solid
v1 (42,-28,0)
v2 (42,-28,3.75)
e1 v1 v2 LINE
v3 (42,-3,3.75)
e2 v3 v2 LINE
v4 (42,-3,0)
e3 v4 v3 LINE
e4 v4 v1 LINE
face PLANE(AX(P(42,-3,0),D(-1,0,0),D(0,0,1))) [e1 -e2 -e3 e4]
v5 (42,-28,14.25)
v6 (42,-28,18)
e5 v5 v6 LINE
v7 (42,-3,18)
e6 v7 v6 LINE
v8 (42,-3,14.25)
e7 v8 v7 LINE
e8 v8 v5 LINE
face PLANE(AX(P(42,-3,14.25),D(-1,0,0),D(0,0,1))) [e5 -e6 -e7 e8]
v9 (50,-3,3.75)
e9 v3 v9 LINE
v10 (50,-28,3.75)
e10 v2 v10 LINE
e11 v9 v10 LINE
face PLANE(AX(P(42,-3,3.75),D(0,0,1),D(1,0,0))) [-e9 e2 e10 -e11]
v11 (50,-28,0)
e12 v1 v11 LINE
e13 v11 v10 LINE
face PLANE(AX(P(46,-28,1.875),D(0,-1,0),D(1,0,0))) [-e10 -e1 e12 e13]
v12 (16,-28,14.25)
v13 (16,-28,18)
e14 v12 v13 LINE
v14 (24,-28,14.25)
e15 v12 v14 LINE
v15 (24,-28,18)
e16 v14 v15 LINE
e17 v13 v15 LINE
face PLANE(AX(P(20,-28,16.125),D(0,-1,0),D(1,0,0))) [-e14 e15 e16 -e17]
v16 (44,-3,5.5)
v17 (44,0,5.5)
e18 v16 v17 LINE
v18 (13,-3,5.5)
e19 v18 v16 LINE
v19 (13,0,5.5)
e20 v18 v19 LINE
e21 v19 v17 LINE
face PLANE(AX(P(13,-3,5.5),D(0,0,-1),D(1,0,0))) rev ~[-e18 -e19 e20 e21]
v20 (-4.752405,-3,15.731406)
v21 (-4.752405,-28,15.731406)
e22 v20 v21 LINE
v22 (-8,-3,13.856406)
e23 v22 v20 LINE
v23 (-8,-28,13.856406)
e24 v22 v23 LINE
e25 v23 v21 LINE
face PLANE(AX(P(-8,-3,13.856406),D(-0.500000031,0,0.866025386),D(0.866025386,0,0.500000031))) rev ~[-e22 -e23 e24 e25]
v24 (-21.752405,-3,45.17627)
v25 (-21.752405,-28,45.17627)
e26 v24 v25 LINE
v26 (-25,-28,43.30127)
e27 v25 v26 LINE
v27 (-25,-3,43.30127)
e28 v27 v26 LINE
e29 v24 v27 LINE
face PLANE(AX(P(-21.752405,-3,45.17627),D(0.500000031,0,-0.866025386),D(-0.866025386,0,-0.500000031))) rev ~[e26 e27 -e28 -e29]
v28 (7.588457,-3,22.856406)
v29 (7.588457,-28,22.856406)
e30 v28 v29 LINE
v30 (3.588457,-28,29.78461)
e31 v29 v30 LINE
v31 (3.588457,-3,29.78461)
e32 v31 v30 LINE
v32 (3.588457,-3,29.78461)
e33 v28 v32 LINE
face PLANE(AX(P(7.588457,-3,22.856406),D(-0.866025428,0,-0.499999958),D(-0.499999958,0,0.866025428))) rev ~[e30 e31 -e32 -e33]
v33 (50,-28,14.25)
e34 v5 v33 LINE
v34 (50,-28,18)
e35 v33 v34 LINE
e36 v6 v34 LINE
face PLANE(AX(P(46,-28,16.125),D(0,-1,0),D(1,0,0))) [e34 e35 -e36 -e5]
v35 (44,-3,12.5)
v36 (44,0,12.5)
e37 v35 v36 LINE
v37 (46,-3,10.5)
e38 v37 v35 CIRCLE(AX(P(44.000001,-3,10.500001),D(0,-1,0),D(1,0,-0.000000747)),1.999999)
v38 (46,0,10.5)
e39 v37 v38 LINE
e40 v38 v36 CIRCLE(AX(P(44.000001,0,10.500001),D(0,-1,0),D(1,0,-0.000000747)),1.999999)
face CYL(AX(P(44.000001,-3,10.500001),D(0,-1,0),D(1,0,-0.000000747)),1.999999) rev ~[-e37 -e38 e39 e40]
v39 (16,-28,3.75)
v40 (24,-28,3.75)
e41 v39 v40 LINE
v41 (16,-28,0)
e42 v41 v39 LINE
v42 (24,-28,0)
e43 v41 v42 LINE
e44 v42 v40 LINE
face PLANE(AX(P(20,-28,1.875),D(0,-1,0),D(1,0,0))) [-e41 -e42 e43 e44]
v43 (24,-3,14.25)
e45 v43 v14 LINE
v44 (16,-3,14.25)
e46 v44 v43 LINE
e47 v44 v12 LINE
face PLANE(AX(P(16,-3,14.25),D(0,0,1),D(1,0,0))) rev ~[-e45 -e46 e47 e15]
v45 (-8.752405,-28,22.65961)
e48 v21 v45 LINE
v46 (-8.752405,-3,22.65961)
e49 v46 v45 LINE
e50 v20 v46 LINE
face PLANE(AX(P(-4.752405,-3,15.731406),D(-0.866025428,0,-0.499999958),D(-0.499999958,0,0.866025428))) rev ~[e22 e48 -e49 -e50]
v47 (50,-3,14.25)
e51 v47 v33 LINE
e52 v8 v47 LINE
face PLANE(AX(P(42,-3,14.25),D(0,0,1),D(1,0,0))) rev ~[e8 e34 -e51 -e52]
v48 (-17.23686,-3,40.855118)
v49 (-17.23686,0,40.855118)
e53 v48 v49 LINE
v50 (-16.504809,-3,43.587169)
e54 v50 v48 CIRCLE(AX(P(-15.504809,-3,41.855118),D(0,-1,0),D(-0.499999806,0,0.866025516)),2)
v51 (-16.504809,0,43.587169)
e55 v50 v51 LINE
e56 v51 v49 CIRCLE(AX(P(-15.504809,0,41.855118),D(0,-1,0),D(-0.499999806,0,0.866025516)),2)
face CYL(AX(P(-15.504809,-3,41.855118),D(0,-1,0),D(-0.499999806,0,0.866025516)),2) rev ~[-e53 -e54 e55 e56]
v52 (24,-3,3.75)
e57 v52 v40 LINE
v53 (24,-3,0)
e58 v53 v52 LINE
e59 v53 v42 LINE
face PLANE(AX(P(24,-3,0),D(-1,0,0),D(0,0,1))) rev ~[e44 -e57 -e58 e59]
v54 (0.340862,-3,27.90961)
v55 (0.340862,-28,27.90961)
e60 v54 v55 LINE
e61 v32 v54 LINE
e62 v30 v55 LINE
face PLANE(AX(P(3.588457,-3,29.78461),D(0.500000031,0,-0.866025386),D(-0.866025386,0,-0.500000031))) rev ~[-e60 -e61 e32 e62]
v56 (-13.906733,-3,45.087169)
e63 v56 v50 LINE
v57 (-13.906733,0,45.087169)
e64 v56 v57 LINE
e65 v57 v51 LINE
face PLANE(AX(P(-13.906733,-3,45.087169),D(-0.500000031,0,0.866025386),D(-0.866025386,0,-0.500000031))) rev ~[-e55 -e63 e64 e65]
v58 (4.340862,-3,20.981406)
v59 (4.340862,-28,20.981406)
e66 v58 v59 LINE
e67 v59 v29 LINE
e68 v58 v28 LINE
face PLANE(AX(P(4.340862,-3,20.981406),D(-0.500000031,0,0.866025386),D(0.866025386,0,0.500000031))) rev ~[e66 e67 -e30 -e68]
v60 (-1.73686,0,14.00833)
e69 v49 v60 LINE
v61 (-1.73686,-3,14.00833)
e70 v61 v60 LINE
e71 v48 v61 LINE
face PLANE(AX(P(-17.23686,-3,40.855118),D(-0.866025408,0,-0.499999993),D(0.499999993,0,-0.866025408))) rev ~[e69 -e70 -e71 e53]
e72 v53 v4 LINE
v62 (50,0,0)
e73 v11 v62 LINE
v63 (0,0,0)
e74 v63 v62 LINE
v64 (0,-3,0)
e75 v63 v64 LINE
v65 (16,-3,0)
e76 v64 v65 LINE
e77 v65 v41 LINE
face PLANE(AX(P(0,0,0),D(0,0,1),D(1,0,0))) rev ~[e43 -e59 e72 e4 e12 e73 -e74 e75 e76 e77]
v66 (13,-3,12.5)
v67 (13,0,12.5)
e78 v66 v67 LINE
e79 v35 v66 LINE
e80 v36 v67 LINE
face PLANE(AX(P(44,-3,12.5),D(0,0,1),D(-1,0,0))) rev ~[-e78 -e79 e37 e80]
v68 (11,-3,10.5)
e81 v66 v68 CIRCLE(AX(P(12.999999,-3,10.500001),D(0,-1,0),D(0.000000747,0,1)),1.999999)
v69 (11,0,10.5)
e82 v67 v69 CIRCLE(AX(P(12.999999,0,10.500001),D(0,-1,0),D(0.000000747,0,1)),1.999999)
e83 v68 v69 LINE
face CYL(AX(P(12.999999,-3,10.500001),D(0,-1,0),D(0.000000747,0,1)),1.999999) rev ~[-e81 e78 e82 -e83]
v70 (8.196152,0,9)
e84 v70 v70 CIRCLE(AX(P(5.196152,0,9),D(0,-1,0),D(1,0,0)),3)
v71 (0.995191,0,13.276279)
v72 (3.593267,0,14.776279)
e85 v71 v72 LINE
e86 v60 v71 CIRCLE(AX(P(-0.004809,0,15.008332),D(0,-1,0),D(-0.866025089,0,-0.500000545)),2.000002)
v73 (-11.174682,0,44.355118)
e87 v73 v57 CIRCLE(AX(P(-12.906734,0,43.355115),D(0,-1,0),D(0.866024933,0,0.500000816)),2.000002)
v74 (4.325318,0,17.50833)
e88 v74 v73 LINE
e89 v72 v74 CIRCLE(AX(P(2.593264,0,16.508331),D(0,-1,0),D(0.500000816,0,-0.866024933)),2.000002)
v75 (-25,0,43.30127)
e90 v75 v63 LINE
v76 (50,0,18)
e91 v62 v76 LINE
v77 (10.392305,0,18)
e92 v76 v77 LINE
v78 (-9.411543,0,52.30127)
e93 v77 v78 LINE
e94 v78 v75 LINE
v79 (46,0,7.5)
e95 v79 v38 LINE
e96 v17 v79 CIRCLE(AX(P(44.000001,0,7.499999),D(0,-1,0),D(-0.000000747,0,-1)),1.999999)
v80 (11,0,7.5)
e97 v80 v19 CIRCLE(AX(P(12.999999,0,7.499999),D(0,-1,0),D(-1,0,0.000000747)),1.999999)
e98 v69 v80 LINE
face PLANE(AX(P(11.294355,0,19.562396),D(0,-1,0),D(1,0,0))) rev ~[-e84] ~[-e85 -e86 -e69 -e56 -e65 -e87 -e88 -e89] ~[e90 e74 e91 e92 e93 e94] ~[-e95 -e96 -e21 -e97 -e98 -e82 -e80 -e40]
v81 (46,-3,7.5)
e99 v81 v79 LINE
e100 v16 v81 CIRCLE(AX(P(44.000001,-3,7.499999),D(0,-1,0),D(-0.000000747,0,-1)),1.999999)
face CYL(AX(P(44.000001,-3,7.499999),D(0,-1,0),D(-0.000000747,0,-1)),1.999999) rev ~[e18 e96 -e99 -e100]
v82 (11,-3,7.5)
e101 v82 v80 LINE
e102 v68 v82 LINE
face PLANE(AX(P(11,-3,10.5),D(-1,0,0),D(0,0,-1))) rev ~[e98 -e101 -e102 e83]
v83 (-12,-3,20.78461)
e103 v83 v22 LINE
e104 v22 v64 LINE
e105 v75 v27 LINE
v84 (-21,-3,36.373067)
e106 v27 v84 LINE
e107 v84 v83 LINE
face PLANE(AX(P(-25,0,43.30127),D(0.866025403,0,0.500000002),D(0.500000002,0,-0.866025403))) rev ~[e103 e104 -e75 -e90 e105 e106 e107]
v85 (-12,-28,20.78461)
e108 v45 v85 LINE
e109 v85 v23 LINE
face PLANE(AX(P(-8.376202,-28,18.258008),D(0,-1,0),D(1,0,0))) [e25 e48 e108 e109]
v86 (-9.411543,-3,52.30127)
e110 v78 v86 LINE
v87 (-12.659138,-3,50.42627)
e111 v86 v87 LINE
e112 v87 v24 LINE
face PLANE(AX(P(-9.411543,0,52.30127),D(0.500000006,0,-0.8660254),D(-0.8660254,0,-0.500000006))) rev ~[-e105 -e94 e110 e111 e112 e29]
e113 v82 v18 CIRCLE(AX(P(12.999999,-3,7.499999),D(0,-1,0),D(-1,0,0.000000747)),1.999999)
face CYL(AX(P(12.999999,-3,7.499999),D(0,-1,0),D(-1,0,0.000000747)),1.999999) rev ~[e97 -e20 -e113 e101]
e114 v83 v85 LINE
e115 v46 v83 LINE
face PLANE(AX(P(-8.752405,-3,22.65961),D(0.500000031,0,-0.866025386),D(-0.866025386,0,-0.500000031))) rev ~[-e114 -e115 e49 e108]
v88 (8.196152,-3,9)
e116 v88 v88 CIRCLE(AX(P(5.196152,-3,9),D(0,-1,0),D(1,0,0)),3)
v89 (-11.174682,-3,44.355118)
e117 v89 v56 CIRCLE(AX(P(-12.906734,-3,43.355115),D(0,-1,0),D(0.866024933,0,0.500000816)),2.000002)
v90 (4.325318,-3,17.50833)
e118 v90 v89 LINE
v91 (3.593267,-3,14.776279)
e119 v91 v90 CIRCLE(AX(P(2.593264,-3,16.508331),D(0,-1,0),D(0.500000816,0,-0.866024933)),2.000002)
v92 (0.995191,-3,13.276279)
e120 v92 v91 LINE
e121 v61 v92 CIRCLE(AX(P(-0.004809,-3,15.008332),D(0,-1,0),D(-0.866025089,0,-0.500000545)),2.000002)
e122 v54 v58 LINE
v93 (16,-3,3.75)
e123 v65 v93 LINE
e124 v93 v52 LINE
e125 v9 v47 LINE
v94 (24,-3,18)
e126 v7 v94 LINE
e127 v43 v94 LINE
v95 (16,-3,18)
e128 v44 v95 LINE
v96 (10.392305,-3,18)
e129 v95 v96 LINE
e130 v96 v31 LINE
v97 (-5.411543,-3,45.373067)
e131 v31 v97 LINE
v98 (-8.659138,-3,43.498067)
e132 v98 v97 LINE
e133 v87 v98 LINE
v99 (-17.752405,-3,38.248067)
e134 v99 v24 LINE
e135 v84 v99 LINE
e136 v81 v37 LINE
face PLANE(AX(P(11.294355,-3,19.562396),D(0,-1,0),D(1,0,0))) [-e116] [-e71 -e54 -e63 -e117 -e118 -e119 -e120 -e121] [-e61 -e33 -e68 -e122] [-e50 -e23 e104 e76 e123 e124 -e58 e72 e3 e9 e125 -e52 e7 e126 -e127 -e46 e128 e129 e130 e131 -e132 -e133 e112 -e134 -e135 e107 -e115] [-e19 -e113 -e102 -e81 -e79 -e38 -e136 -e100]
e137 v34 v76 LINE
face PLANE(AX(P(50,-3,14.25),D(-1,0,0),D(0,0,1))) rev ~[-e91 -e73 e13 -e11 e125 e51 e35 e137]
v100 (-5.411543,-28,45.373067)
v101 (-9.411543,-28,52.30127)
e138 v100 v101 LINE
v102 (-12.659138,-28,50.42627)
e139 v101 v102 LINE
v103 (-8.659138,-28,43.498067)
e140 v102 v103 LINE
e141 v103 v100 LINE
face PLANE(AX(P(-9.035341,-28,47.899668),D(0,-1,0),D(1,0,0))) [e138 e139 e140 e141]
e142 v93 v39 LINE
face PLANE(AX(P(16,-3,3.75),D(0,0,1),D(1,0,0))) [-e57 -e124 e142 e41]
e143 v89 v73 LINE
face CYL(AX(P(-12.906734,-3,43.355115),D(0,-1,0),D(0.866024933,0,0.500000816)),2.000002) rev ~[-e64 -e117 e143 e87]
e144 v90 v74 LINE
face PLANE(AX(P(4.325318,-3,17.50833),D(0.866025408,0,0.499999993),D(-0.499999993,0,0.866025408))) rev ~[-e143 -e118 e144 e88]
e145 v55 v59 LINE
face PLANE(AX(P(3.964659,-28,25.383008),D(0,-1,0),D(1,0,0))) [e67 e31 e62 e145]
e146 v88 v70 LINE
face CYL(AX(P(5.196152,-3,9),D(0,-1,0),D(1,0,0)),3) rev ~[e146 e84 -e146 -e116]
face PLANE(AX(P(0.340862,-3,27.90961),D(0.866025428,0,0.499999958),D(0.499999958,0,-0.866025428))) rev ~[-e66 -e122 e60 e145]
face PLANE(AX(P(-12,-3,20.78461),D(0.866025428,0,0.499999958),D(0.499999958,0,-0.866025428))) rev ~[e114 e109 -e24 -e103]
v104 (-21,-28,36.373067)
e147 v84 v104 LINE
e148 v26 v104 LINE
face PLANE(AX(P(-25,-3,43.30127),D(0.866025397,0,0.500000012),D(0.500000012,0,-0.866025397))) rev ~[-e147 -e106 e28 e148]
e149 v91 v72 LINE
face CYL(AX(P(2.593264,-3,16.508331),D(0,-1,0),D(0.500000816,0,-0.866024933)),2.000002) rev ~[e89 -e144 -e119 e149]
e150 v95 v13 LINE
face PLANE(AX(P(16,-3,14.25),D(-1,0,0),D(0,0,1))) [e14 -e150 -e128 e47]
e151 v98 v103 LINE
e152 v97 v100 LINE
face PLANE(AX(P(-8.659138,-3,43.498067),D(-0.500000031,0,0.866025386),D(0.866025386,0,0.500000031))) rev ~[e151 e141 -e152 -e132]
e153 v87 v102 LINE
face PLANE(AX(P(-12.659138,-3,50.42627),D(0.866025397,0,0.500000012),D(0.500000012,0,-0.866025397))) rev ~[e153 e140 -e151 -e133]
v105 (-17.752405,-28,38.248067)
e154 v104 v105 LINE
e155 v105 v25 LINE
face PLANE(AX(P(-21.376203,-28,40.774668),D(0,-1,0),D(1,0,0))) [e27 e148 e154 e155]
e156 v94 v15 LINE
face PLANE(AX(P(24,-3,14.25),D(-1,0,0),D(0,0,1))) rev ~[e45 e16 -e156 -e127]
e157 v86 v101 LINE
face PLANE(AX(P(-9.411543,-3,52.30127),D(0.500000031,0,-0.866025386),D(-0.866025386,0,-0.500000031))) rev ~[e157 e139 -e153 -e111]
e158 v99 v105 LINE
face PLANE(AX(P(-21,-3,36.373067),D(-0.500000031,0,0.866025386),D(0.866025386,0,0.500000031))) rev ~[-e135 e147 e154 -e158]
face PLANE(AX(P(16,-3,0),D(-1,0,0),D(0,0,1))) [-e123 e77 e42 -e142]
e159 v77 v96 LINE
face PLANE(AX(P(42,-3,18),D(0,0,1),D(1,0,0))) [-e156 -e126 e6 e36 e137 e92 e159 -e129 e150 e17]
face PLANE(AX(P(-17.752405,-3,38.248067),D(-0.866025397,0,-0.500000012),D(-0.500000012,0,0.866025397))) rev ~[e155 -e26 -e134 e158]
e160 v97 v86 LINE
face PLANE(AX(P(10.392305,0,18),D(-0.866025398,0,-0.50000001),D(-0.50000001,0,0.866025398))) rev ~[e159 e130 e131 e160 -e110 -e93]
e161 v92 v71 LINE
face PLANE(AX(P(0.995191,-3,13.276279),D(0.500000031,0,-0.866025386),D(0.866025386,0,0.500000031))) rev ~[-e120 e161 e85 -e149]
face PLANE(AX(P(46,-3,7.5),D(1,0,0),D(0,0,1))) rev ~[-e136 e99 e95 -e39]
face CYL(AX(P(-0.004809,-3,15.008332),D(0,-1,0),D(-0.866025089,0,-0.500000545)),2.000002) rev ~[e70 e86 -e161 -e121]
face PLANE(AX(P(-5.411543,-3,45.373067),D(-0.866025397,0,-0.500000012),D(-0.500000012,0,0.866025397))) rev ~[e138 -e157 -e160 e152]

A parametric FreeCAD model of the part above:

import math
import FreeCAD as App
import Part
import Sketcher
from FreeCAD import Vector
Q = App.Units.Quantity


def add_polygon(sketch, points):
    """Adds a closed chain of lines whose ends are joined by coincident constraints."""
    first, n = sketch.GeometryCount, len(points)
    for a, b in zip(points, points[1:] + points[:1]):
        sketch.addGeometry(Part.LineSegment(App.Vector(*a, 0), App.Vector(*b, 0)), False)
    for i in range(n):
        sketch.addConstraint(Sketcher.Constraint("Coincident", first + i, 2, first + (i + 1) % n, 1))

doc = App.newDocument("Part")
body = doc.addObject("PartDesign::Body", "Body")

# Sketch on XZ plane
sketch1 = doc.addObject("Sketcher::SketchObject", "Sketch")
body.addObject(sketch1)
sketch1.AttachmentSupport = (doc.XZ_Plane, [""])
sketch1.MapMode = "FlatFace"
add_polygon(sketch1, [(-25, 43), (0, 0), (50, 0), (50, 18), (10, 18), (-9, 52)])  # lines 0-5
sketch1.addConstraint([
    Sketcher.Constraint("Horizontal", 1),
    Sketcher.Constraint("Vertical", 2),
    Sketcher.Constraint("Horizontal", 3),
    Sketcher.Constraint("Coincident", 0, 2, -1, 1),
    Sketcher.Constraint("Parallel", 0, 4),
    Sketcher.Constraint("Perpendicular", 4, 5),
    Sketcher.Constraint("DistanceX", 1, 1, 1, 2, Q("50 mm")),
    Sketcher.Constraint("DistanceY", 2, 1, 2, 2, Q("18 mm")),
    Sketcher.Constraint("Angle", 0, Q("-60 deg")),
    Sketcher.Constraint("Distance", 0, Q("50 mm")),
    Sketcher.Constraint("Distance", 5, Q("18 mm")),
])
pad1 = doc.addObject("PartDesign::Pad", "Pad")
body.addObject(pad1)
pad1.Profile = sketch1
pad1.Length = 3

# Sketch on XZ plane
sketch2 = doc.addObject("Sketcher::SketchObject", "Sketch001")
body.addObject(sketch2)
sketch2.AttachmentSupport = (doc.XZ_Plane, [""])
sketch2.MapMode = "FlatFace"
sketch2.AttachmentOffset = App.Placement(Vector(0, 0, 3), App.Rotation())
add_polygon(sketch2, [(42, 18), (42, 14.2), (50, 14.2), (50, 18)])  # lines 0-3
add_polygon(sketch2, [(42, 3.8), (42, 0), (50, 0), (50, 3.8)])  # lines 4-7
add_polygon(sketch2, [(16, 3.8), (16, 0), (24, 0), (24, 3.8)])  # lines 8-11
add_polygon(sketch2, [(16, 18), (16, 14.2), (24, 14.2), (24, 18)])  # lines 12-15
add_polygon(sketch2, [(4.3, 21), (7.6, 22.9), (3.6, 29.8), (0.3, 27.9)])  # lines 16-19
add_polygon(sketch2, [(-12, 20.8), (-8, 13.9), (-4.8, 15.7), (-8.8, 22.7)])  # lines 20-23
add_polygon(sketch2, [(-17.8, 38.2), (-21.8, 45.2), (-25, 43.3), (-21, 36.4)])  # lines 24-27
add_polygon(sketch2, [(-8.7, 43.5), (-5.4, 45.4), (-9.4, 52.3), (-12.7, 50.4)])  # lines 28-31
sketch2.addConstraint([
    Sketcher.Constraint("Vertical", 0),
    Sketcher.Constraint("Horizontal", 1),
    Sketcher.Constraint("Vertical", 2),
    Sketcher.Constraint("Horizontal", 3),
    Sketcher.Constraint("Vertical", 4),
    Sketcher.Constraint("Horizontal", 5),
    Sketcher.Constraint("Vertical", 6),
    Sketcher.Constraint("Horizontal", 7),
    Sketcher.Constraint("Vertical", 8),
    Sketcher.Constraint("Horizontal", 9),
    Sketcher.Constraint("Vertical", 10),
    Sketcher.Constraint("Horizontal", 11),
    Sketcher.Constraint("Vertical", 12),
    Sketcher.Constraint("Horizontal", 13),
    Sketcher.Constraint("Vertical", 14),
    Sketcher.Constraint("Horizontal", 15),
    Sketcher.Constraint("PointOnObject", 4, 2, -1),
    Sketcher.Constraint("PointOnObject", 8, 2, -1),
    Sketcher.Constraint("Perpendicular", 16, 17),
    Sketcher.Constraint("Perpendicular", 17, 18),
    Sketcher.Constraint("Perpendicular", 18, 19),
    Sketcher.Constraint("Parallel", 19, 20),
    Sketcher.Constraint("Perpendicular", 20, 21),
    Sketcher.Constraint("Perpendicular", 21, 22),
    Sketcher.Constraint("Perpendicular", 22, 23),
    Sketcher.Constraint("Perpendicular", 23, 24),
    Sketcher.Constraint("Perpendicular", 24, 25),
    Sketcher.Constraint("Perpendicular", 25, 26),
    Sketcher.Constraint("Perpendicular", 26, 27),
    Sketcher.Constraint("Parallel", 27, 28),
    Sketcher.Constraint("Perpendicular", 28, 29),
    Sketcher.Constraint("Perpendicular", 29, 30),
    Sketcher.Constraint("Perpendicular", 30, 31),
    Sketcher.Constraint("Horizontal", 7, 2, 10, 2),
    Sketcher.Constraint("Horizontal", 1, 2, 12, 2),
    Sketcher.Constraint("Horizontal", 3, 2, 14, 2),
    Sketcher.Constraint("Vertical", 3, 2, 4, 2),
    Sketcher.Constraint("Vertical", 2, 2, 5, 2),
    Sketcher.Constraint("Vertical", 11, 2, 12, 2),
    Sketcher.Constraint("Vertical", 10, 2, 13, 2),
    Sketcher.Constraint("Equal", 7, 9),
    Sketcher.Constraint("Equal", 2, 4),
    Sketcher.Constraint("Equal", 19, 20),
    Sketcher.Constraint("Equal", 18, 21),
    Sketcher.Constraint("Equal", 22, 24),
    Sketcher.Constraint("Equal", 23, 25),
    Sketcher.Constraint("Equal", 27, 28),
    Sketcher.Constraint("Equal", 26, 29),
    Sketcher.Constraint("DistanceX", 1, 1, 1, 2, Q("8 mm")),
    Sketcher.Constraint("Angle", 16, Q("30.000002 deg")),
    Sketcher.Constraint("Distance", 17, Q("8.000001 mm")),
    Sketcher.Constraint("DistanceX", -1, 1, 0, 2, Q("42 mm")),
    Sketcher.Constraint("DistanceY", -1, 1, 2, 2, Q("18 mm")),
    Sketcher.Constraint("DistanceX", -1, 1, 8, 2, Q("16 mm")),
    Sketcher.Constraint("DistanceX", 20, 2, -1, 1, Q("8 mm")),
    Sketcher.Constraint("DistanceX", 25, 2, -1, 1, Q("25 mm")),
    Sketcher.Constraint("DistanceY", 20, 2, 16, 2, Q("9 mm")),
    Sketcher.Constraint("DistanceX", 28, 2, 17, 2, Q("9 mm")),
    Sketcher.Constraint("DistanceY", 26, 2, 28, 2, Q("9 mm")),
    Sketcher.Constraint("DistanceY", 0, 2, 0, 1, Q("3.75 mm")),
    Sketcher.Constraint("Distance", 16, Q("3.75 mm")),
    Sketcher.Constraint("DistanceY", -1, 1, 17, 2, Q("29.78461 mm")),
    Sketcher.Constraint("DistanceY", -1, 1, 24, 2, Q("45.17627 mm")),
    Sketcher.Constraint("DistanceX", -1, 1, 16, 2, Q("7.588457 mm")),
])
pad2 = doc.addObject("PartDesign::Pad", "Pad001")
body.addObject(pad2)
pad2.Profile = sketch2
pad2.Length = 25

# Sketch on XZ plane
sketch3 = doc.addObject("Sketcher::SketchObject", "Sketch002")
body.addObject(sketch3)
sketch3.AttachmentSupport = (doc.XZ_Plane, [""])
sketch3.MapMode = "FlatFace"
sketch3.AttachmentOffset = App.Placement(Vector(0, 0, 3), App.Rotation())
sketch3.addGeometry([
    Part.ArcOfCircle(Part.Circle(Vector(2.6, 16.5, 0), Vector(0, 0, 1), 2), math.radians(-60), math.radians(30)),  # 0
    Part.LineSegment(Vector(4.3, 17.5, 0), Vector(-11.2, 44.4, 0)),  # 1
    Part.ArcOfCircle(Part.Circle(Vector(-12.9, 43.4, 0), Vector(0, 0, 1), 2), math.radians(30), math.radians(120)),  # 2
    Part.LineSegment(Vector(-13.9, 45.1, 0), Vector(-16.5, 43.6, 0)),  # 3
    Part.ArcOfCircle(Part.Circle(Vector(-15.5, 41.9, 0), Vector(0, 0, 1), 2), math.radians(120), math.radians(210)),  # 4
    Part.LineSegment(Vector(-17.2, 40.9, 0), Vector(-1.7, 14, 0)),  # 5
    Part.ArcOfCircle(Part.Circle(Vector(0, 15, 0), Vector(0, 0, 1), 2), math.radians(-150), math.radians(-60)),  # 6
    Part.LineSegment(Vector(1, 13.3, 0), Vector(3.6, 14.8, 0)),  # 7
    Part.LineSegment(Vector(44, 12.5, 0), Vector(13, 12.5, 0)),  # 8
    Part.ArcOfCircle(Part.Circle(Vector(13, 10.5, 0), Vector(0, 0, 1), 2), math.radians(90), math.radians(180)),  # 9
    Part.LineSegment(Vector(11, 10.5, 0), Vector(11, 7.5, 0)),  # 10
    Part.ArcOfCircle(Part.Circle(Vector(13, 7.5, 0), Vector(0, 0, 1), 2), math.radians(180), math.radians(270)),  # 11
    Part.LineSegment(Vector(13, 5.5, 0), Vector(44, 5.5, 0)),  # 12
    Part.ArcOfCircle(Part.Circle(Vector(44, 7.5, 0), Vector(0, 0, 1), 2), math.radians(-90), math.radians(0)),  # 13
    Part.LineSegment(Vector(46, 7.5, 0), Vector(46, 10.5, 0)),  # 14
    Part.ArcOfCircle(Part.Circle(Vector(44, 10.5, 0), Vector(0, 0, 1), 2), math.radians(0), math.radians(90)),  # 15
    Part.Circle(Vector(5.2, 9, 0), Vector(0, 0, 1), 3),  # 16
], False)
sketch3.addConstraint([
    Sketcher.Constraint("Tangent", 0, 2, 1, 1),
    Sketcher.Constraint("Tangent", 1, 2, 2, 1),
    Sketcher.Constraint("Tangent", 2, 2, 3, 1),
    Sketcher.Constraint("Tangent", 3, 2, 4, 1),
    Sketcher.Constraint("Tangent", 4, 2, 5, 1),
    Sketcher.Constraint("Tangent", 5, 2, 6, 1),
    Sketcher.Constraint("Tangent", 6, 2, 7, 1),
    Sketcher.Constraint("Tangent", 7, 2, 0, 1),
    Sketcher.Constraint("Tangent", 8, 2, 9, 1),
    Sketcher.Constraint("Tangent", 9, 2, 10, 1),
    Sketcher.Constraint("Tangent", 10, 2, 11, 1),
    Sketcher.Constraint("Tangent", 11, 2, 12, 1),
    Sketcher.Constraint("Tangent", 12, 2, 13, 1),
    Sketcher.Constraint("Tangent", 13, 2, 14, 1),
    Sketcher.Constraint("Tangent", 14, 2, 15, 1),
    Sketcher.Constraint("Tangent", 15, 2, 8, 1),
    Sketcher.Constraint("Horizontal", 8),
    Sketcher.Constraint("Vertical", 10),
    Sketcher.Constraint("Horizontal", 12),
    Sketcher.Constraint("Vertical", 14),
    Sketcher.Constraint("Equal", 0, 2),
    Sketcher.Constraint("Equal", 4, 6),
    Sketcher.Constraint("Equal", 4, 9),
    Sketcher.Constraint("Equal", 9, 11),
    Sketcher.Constraint("Equal", 11, 13),
    Sketcher.Constraint("Equal", 13, 15),
    Sketcher.Constraint("Perpendicular", 1, 3),
    Sketcher.Constraint("Perpendicular", 3, 5),
    Sketcher.Constraint("Perpendicular", 5, 7),
    Sketcher.Constraint("Equal", 1, 5),
    Sketcher.Constraint("Diameter", 16, Q("6 mm")),
    Sketcher.Constraint("Radius", 4, Q("2 mm")),
    Sketcher.Constraint("DistanceX", 8, 2, 8, 1, Q("31 mm")),
    Sketcher.Constraint("DistanceY", 10, 2, 10, 1, Q("3 mm")),
    Sketcher.Constraint("Angle", 1, Q("120 deg")),
    Sketcher.Constraint("Distance", 1, Q("31 mm")),
    Sketcher.Constraint("Distance", 3, Q("3 mm")),
    Sketcher.Constraint("DistanceX", -1, 1, 9, 3, Q("12.999999 mm")),
    Sketcher.Constraint("DistanceY", -1, 1, 16, 3, Q("9 mm")),
    Sketcher.Constraint("DistanceY", -1, 1, 9, 3, Q("10.500001 mm")),
    Sketcher.Constraint("DistanceY", -1, 1, 0, 3, Q("16.508331 mm")),
    Sketcher.Constraint("DistanceX", 4, 3, -1, 1, Q("15.504809 mm")),
    Sketcher.Constraint("DistanceX", -1, 1, 16, 3, Q("5.196152 mm")),
])
pocket1 = doc.addObject("PartDesign::Pocket", "Pocket")
body.addObject(pocket1)
pocket1.Profile = sketch3
pocket1.Type = "ThroughAll"

doc.recompute()
